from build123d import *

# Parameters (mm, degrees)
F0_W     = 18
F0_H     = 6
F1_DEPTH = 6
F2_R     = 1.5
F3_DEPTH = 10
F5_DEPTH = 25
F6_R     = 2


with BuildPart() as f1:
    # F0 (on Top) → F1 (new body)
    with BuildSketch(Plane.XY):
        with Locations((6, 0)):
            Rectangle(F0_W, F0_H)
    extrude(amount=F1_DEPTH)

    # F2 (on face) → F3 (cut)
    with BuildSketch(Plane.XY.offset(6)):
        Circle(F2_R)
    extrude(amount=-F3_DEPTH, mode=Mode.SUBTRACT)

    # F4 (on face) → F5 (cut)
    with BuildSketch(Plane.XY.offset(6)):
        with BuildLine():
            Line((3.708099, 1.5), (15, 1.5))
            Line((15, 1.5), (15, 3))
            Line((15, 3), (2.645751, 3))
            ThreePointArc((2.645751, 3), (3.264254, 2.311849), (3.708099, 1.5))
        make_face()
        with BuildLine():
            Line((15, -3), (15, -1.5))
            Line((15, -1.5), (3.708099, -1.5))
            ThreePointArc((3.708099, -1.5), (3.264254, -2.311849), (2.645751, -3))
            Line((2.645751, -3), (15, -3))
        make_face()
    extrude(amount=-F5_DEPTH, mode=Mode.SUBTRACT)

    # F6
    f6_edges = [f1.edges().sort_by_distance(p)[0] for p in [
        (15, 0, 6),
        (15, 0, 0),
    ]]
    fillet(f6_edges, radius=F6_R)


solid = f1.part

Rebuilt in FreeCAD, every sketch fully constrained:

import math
import FreeCAD as App
import Part
import Sketcher
Q = App.Units.Quantity


def edges_at(feature, points):
    """Names of the edges that pass closest to the given points."""
    edges = feature.Shape.Edges
    near = lambda p: min(range(len(edges)), key=lambda i: edges[i].distToShape(Part.Vertex(*p))[0])
    return sorted({f"Edge{near(p) + 1}" for p in points})

doc = App.newDocument("Part")
body = doc.addObject("PartDesign::Body", "Body")

sketch1 = body.newObject("Sketcher::SketchObject", "Sketch")
sketch1.AttachmentSupport = (doc.getObject("XY_Plane"), [""])
sketch1.MapMode = "FlatFace"
sketch1.addGeometry(Part.LineSegment(App.Vector(-3, 3, 0), App.Vector(-3, -3, 0)), False)
sketch1.addGeometry(Part.LineSegment(App.Vector(-3, -3, 0), App.Vector(15, -3, 0)), False)
sketch1.addGeometry(Part.LineSegment(App.Vector(15, -3, 0), App.Vector(15, 3, 0)), False)
sketch1.addGeometry(Part.LineSegment(App.Vector(15, 3, 0), App.Vector(-3, 3, 0)), False)
sketch1.addConstraint(Sketcher.Constraint("Coincident", 0, 2, 1, 1))
sketch1.addConstraint(Sketcher.Constraint("Coincident", 1, 2, 2, 1))
sketch1.addConstraint(Sketcher.Constraint("Coincident", 2, 2, 3, 1))
sketch1.addConstraint(Sketcher.Constraint("Coincident", 3, 2, 0, 1))
sketch1.addConstraint(Sketcher.Constraint("Vertical", 0))
sketch1.addConstraint(Sketcher.Constraint("Horizontal", 1))
sketch1.addConstraint(Sketcher.Constraint("Vertical", 2))
sketch1.addConstraint(Sketcher.Constraint("Horizontal", 3))
sketch1.addConstraint(Sketcher.Constraint("DistanceX", 1, 1, 1, 2, Q("18 mm")))
sketch1.addConstraint(Sketcher.Constraint("DistanceY", 0, 2, 0, 1, Q("6 mm")))
sketch1.addConstraint(Sketcher.Constraint("DistanceX", 0, 2, -1, 1, Q("3 mm")))
sketch1.addConstraint(Sketcher.Constraint("DistanceY", 0, 2, -1, 1, Q("3 mm")))
pad1 = body.newObject("PartDesign::Pad", "Pad")
pad1.Profile = sketch1
pad1.Length = 6

sketch2 = body.newObject("Sketcher::SketchObject", "Sketch001")
sketch2.AttachmentSupport = (doc.getObject("XY_Plane"), [""])
sketch2.MapMode = "FlatFace"
sketch2.AttachmentOffset = App.Placement(App.Vector(0, 0, 6), App.Rotation())
sketch2.addGeometry(Part.Circle(App.Vector(0, 0, 0), App.Vector(0, 0, 1), 1.5), False)
sketch2.addConstraint(Sketcher.Constraint("Coincident", 0, 3, -1, 1))
sketch2.addConstraint(Sketcher.Constraint("Diameter", 0, Q("3 mm")))
pocket1 = body.newObject("PartDesign::Pocket", "Pocket")
pocket1.Profile = sketch2
pocket1.Length = 10

sketch3 = body.newObject("Sketcher::SketchObject", "Sketch002")
sketch3.AttachmentSupport = (doc.getObject("XY_Plane"), [""])
sketch3.MapMode = "FlatFace"
sketch3.AttachmentOffset = App.Placement(App.Vector(0, 0, 6), App.Rotation())
sketch3.addGeometry(Part.LineSegment(App.Vector(3.708099, 1.5, 0), App.Vector(15, 1.5, 0)), False)
sketch3.addGeometry(Part.LineSegment(App.Vector(15, 1.5, 0), App.Vector(15, 3, 0)), False)
sketch3.addGeometry(Part.LineSegment(App.Vector(15, 3, 0), App.Vector(2.645751, 3, 0)), False)
sketch3.addGeometry(Part.ArcOfCircle(Part.Circle(App.Vector(0.000006, 0.000005, 0), App.Vector(0, 0, 1), 3.999992), math.radians(22.024287), math.radians(48.590407)), False)
sketch3.addGeometry(Part.LineSegment(App.Vector(15, -3, 0), App.Vector(15, -1.5, 0)), False)
sketch3.addGeometry(Part.LineSegment(App.Vector(15, -1.5, 0), App.Vector(3.708099, -1.5, 0)), False)
sketch3.addGeometry(Part.ArcOfCircle(Part.Circle(App.Vector(0.000006, -0.000005, 0), App.Vector(0, 0, 1), 3.999992), math.radians(-48.590407), math.radians(-22.024287)), False)
sketch3.addGeometry(Part.LineSegment(App.Vector(2.645751, -3, 0), App.Vector(15, -3, 0)), False)
sketch3.addConstraint(Sketcher.Constraint("Coincident", 0, 2, 1, 1))
sketch3.addConstraint(Sketcher.Constraint("Coincident", 1, 2, 2, 1))
sketch3.addConstraint(Sketcher.Constraint("Coincident", 2, 2, 3, 2))
sketch3.addConstraint(Sketcher.Constraint("Coincident", 3, 1, 0, 1))
sketch3.addConstraint(Sketcher.Constraint("Coincident", 4, 2, 5, 1))
sketch3.addConstraint(Sketcher.Constraint("Coincident", 5, 2, 6, 2))
sketch3.addConstraint(Sketcher.Constraint("Coincident", 6, 1, 7, 1))
sketch3.addConstraint(Sketcher.Constraint("Coincident", 7, 2, 4, 1))
sketch3.addConstraint(Sketcher.Constraint("Horizontal", 0))
sketch3.addConstraint(Sketcher.Constraint("Vertical", 1))
sketch3.addConstraint(Sketcher.Constraint("Horizontal", 2))
sketch3.addConstraint(Sketcher.Constraint("Vertical", 4))
sketch3.addConstraint(Sketcher.Constraint("Horizontal", 5))
sketch3.addConstraint(Sketcher.Constraint("Horizontal", 7))
sketch3.addConstraint(Sketcher.Constraint("Coincident", 3, 3, -1, 1))
sketch3.addConstraint(Sketcher.Constraint("Coincident", 6, 3, -1, 1))
sketch3.addConstraint(Sketcher.Constraint("Equal", 3, 6))
sketch3.addConstraint(Sketcher.Constraint("Symmetric", 0, 2, 4, 2, -1))
sketch3.addConstraint(Sketcher.Constraint("Vertical", 2, 2, 6, 1))
sketch3.addConstraint(Sketcher.Constraint("DistanceY", 1, 1, 1, 2, Q("1.5 mm")))
sketch3.addConstraint(Sketcher.Constraint("DistanceX", -1, 1, 0, 2, Q("15 mm")))
sketch3.addConstraint(Sketcher.Constraint("DistanceY", -1, 1, 1, 2, Q("3 mm")))
sketch3.addConstraint(Sketcher.Constraint("DistanceX", 0, 1, 0, 2, Q("11.291901 mm")))
pocket2 = body.newObject("PartDesign::Pocket", "Pocket001")
pocket2.Profile = sketch3
pocket2.Length = 25
doc.recompute()

fillet = body.newObject("PartDesign::Fillet", "Fillet")
fillet.Base = (pocket2, edges_at(pocket2, [(15, 0, 6), (15, 0, 0)]))
fillet.Radius = 2

doc.recompute()
